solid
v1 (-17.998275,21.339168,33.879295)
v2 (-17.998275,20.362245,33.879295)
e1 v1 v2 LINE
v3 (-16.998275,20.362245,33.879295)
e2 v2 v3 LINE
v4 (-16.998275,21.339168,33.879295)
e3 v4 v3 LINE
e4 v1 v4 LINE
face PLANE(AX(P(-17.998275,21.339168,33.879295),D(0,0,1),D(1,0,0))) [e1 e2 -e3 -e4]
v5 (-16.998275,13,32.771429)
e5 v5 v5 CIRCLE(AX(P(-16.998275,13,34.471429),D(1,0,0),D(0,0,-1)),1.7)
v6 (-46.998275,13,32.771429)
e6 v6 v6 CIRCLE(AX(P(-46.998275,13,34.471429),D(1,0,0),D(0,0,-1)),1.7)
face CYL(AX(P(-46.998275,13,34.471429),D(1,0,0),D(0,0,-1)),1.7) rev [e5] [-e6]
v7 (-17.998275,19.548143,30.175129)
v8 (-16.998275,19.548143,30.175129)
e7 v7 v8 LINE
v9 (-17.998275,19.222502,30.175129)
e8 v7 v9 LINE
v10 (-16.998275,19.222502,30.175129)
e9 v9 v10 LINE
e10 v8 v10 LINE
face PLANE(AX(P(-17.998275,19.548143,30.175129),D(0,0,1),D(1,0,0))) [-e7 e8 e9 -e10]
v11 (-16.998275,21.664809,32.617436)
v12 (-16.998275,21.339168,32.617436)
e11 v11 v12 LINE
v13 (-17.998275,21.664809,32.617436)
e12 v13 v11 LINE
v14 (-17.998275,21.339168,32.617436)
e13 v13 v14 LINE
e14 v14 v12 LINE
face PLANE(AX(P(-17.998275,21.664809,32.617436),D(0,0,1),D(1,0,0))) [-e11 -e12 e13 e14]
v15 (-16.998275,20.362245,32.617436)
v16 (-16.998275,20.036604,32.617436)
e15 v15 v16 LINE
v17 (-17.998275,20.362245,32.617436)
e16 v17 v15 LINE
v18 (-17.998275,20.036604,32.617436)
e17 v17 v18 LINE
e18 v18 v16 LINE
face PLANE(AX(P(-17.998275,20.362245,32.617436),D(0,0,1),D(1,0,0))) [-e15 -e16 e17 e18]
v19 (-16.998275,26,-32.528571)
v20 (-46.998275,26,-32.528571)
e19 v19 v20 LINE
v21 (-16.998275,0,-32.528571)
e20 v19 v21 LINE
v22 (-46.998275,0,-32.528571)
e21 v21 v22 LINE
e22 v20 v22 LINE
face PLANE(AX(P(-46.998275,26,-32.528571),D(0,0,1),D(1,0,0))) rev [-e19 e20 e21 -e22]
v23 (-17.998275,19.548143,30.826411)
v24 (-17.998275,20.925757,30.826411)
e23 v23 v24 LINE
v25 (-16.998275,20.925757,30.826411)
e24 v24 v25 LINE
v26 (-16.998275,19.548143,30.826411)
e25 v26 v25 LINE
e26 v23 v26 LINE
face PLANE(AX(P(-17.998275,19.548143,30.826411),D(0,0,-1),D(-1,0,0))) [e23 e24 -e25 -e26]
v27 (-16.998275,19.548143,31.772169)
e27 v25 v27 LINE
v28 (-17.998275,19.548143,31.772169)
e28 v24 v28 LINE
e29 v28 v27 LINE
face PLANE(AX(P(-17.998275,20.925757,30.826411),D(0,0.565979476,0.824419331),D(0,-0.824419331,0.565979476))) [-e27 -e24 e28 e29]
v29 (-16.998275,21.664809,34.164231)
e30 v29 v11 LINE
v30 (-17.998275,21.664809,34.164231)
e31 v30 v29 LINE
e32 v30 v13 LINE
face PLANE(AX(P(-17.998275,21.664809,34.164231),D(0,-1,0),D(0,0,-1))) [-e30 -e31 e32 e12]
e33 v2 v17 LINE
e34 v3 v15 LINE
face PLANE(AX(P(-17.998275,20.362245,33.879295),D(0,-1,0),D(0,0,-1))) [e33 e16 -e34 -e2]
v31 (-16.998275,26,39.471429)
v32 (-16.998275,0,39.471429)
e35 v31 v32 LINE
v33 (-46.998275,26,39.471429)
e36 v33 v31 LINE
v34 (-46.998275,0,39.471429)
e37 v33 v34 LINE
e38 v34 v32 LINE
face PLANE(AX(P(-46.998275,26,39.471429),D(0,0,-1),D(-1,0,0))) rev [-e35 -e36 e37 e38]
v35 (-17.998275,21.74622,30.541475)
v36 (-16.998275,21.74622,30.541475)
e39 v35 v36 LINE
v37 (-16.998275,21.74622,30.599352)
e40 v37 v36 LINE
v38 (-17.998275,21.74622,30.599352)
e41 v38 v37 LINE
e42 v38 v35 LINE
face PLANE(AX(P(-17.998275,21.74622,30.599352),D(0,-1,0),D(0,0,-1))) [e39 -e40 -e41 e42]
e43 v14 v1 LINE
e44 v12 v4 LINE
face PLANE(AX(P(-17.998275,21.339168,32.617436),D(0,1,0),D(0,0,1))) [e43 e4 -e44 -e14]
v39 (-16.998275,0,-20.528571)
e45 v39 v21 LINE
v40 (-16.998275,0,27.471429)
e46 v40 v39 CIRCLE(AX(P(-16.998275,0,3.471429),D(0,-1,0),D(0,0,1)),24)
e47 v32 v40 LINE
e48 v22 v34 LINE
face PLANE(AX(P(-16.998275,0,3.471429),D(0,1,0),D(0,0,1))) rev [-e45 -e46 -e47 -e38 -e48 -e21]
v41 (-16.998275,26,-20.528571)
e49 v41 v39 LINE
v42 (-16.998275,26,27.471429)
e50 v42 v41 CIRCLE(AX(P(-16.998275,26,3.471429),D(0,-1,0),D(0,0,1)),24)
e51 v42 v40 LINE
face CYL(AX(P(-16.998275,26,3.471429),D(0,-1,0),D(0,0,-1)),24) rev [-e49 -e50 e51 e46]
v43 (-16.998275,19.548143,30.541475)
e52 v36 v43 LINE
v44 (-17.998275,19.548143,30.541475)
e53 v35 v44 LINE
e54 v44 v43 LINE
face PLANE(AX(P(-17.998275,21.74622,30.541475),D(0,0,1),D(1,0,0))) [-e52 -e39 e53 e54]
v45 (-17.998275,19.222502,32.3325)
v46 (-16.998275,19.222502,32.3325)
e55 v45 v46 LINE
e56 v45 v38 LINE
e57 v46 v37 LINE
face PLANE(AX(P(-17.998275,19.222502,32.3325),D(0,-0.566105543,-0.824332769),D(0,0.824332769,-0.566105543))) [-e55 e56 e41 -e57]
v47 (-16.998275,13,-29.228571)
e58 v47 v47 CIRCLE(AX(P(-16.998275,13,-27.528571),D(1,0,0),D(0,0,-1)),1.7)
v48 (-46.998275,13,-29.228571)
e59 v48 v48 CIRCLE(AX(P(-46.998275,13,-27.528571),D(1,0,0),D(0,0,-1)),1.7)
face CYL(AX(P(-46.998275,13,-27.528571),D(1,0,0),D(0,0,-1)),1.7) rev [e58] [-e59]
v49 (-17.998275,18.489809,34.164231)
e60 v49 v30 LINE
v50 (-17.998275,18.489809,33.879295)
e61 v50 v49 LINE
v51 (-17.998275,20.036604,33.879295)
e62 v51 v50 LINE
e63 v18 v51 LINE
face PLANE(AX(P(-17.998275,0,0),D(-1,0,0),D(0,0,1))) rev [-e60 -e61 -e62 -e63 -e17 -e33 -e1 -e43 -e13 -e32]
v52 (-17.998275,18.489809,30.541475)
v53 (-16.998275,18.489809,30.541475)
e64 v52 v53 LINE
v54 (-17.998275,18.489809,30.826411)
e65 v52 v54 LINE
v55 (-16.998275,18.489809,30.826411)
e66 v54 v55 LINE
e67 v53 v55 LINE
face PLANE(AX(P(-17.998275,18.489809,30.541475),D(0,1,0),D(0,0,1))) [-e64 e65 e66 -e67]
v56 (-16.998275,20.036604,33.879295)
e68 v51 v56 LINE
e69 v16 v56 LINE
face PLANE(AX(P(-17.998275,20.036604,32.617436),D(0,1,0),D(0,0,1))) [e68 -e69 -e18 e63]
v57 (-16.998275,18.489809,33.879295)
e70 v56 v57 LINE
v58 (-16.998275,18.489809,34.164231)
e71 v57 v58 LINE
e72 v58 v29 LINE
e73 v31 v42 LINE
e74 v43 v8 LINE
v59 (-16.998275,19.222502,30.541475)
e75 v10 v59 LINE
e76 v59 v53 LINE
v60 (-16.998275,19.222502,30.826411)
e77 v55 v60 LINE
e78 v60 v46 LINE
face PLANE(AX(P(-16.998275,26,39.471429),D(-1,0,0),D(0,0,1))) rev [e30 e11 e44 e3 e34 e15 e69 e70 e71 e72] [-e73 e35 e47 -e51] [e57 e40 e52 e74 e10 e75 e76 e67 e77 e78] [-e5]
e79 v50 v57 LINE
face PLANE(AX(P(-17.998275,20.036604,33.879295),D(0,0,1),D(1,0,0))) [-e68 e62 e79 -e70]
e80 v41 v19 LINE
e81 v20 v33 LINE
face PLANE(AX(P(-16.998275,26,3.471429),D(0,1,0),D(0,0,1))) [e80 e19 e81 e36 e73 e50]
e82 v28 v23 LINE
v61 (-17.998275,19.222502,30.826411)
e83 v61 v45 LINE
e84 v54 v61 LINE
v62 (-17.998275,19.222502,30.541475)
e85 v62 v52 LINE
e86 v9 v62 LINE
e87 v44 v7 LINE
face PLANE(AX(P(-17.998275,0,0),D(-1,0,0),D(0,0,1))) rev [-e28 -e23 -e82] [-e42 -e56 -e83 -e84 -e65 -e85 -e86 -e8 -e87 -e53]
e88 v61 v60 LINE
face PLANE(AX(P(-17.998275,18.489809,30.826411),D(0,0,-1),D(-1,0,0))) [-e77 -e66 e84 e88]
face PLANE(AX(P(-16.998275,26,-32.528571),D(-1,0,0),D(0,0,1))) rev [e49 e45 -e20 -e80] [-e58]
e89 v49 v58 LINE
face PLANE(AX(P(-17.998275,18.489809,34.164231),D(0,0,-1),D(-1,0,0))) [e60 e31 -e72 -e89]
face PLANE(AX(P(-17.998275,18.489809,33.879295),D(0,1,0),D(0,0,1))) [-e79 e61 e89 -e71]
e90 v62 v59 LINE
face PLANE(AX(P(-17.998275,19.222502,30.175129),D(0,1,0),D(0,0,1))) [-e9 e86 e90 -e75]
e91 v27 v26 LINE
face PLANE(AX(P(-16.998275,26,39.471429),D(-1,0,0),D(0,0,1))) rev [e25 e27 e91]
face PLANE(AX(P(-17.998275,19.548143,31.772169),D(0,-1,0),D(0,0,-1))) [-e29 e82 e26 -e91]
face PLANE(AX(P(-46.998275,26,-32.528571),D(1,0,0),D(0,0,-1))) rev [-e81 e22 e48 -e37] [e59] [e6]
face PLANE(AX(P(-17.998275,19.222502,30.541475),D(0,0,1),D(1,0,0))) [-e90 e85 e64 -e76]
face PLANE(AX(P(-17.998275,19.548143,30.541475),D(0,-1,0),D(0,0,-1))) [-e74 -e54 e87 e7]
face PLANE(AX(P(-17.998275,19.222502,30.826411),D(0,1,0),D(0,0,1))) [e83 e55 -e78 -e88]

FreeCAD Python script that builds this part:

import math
import FreeCAD as App
import Part
import Sketcher
from FreeCAD import Vector
Q = App.Units.Quantity


def add_polygon(sketch, points):
    """Adds a closed chain of lines whose ends are joined by coincident constraints."""
    first, n = sketch.GeometryCount, len(points)
    for a, b in zip(points, points[1:] + points[:1]):
        sketch.addGeometry(Part.LineSegment(App.Vector(*a, 0), App.Vector(*b, 0)), False)
    for i in range(n):
        sketch.addConstraint(Sketcher.Constraint("Coincident", first + i, 2, first + (i + 1) % n, 1))

doc = App.newDocument("Part")
params = doc.addObject("Spreadsheet::Sheet", "Params")
for row, (alias, value) in enumerate([
    ("sketch1_radius", "24 mm"),
    ("sketch1_width", "30 mm"),
    ("sketch1_height", "72 mm"),
    ("pad1_length", "26 mm"),
    ("sketch2_diameter", "3.4 mm"),
    ("pocket2_length", "1 mm"),
], start=1):
    params.set(f"A{row}", alias)
    params.set(f"B{row}", "=" + value)
    params.setAlias(f"B{row}", alias)

body = doc.addObject("PartDesign::Body", "Body")

sketch1 = body.newObject("Sketcher::SketchObject", "Sketch")
sketch1.AttachmentSupport = (doc.getObject("XZ_Plane"), [""])
sketch1.MapMode = "FlatFace"
sketch1.addGeometry([
    Part.LineSegment(Vector(-46.998275, -32.528571, 0), Vector(-46.998275, 39.471429, 0)),
    Part.LineSegment(Vector(-46.998275, 39.471429, 0), Vector(-16.998275, 39.471429, 0)),
    Part.LineSegment(Vector(-16.998275, 39.471429, 0), Vector(-16.998275, 27.471429, 0)),
    Part.ArcOfCircle(Part.Circle(Vector(-16.998275, 3.471429, 0), Vector(0, 0, 1), 24), math.radians(90), math.radians(270)),
    Part.LineSegment(Vector(-16.998275, -20.528571, 0), Vector(-16.998275, -32.528571, 0)),
    Part.LineSegment(Vector(-16.998275, -32.528571, 0), Vector(-46.998275, -32.528571, 0)),
], False)
sketch1.addConstraint([
    Sketcher.Constraint("Coincident", 0, 2, 1, 1),
    Sketcher.Constraint("Coincident", 1, 2, 2, 1),
    Sketcher.Constraint("Coincident", 2, 2, 3, 1),
    Sketcher.Constraint("Coincident", 3, 2, 4, 1),
    Sketcher.Constraint("Coincident", 4, 2, 5, 1),
    Sketcher.Constraint("Coincident", 5, 2, 0, 1),
    Sketcher.Constraint("Vertical", 0),
    Sketcher.Constraint("Horizontal", 1),
    Sketcher.Constraint("Vertical", 2),
    Sketcher.Constraint("Vertical", 4),
    Sketcher.Constraint("Horizontal", 5),
    Sketcher.Constraint("Vertical", 3, 3, 1, 2),
    Sketcher.Constraint("Vertical", 2, 2, 3, 2),
    Sketcher.Constraint("Equal", 2, 4),
    Sketcher.Constraint("Radius", 3, Q("24 mm")),
    Sketcher.Constraint("DistanceX", 1, 1, 1, 2, Q("30 mm")),
    Sketcher.Constraint("DistanceY", 0, 1, 0, 2, Q("72 mm")),
    Sketcher.Constraint("DistanceY", -1, 1, 3, 3, Q("3.471429 mm")),
    Sketcher.Constraint("DistanceX", 3, 3, -1, 1, Q("16.998275 mm")),
])
sketch1.setExpression("Constraints[14]", "Params.sketch1_radius")
sketch1.setExpression("Constraints[15]", "Params.sketch1_width")
sketch1.setExpression("Constraints[16]", "Params.sketch1_height")
pad1 = body.newObject("PartDesign::Pad", "Pad")
pad1.Profile = sketch1
pad1.setExpression("Length", "Params.pad1_length")
pad1.Reversed = True

sketch2 = body.newObject("Sketcher::SketchObject", "Sketch001")
sketch2.AttachmentSupport = (doc.getObject("YZ_Plane"), [""])
sketch2.MapMode = "FlatFace"
sketch2.AttachmentOffset = App.Placement(Vector(0, 0, -16.998275), App.Rotation())
sketch2.addGeometry([
    Part.Circle(Vector(13, 34.471429, 0), Vector(0, 0, 1), 1.7),
    Part.Circle(Vector(13, -27.528571, 0), Vector(0, 0, 1), 1.7),
], False)
sketch2.addConstraint([
    Sketcher.Constraint("Equal", 0, 1),
    Sketcher.Constraint("Vertical", 0, 3, 1, 3),
    Sketcher.Constraint("Diameter", 0, Q("3.4 mm")),
    Sketcher.Constraint("DistanceX", -1, 1, 0, 3, Q("13 mm")),
    Sketcher.Constraint("DistanceY", 1, 3, 0, 3, Q("62 mm")),
    Sketcher.Constraint("DistanceY", -1, 1, 0, 3, Q("34.471429 mm")),
])
sketch2.setExpression("Constraints[2]", "Params.sketch2_diameter")
pocket1 = body.newObject("PartDesign::Pocket", "Pocket")
pocket1.Profile = sketch2
pocket1.Type = "ThroughAll"

sketch3 = body.newObject("Sketcher::SketchObject", "Sketch002")
sketch3.AttachmentSupport = (doc.getObject("YZ_Plane"), [""])
sketch3.MapMode = "FlatFace"
sketch3.AttachmentOffset = App.Placement(Vector(0, 0, -16.998275), App.Rotation())
add_polygon(sketch3, [(21.664809, 32.617436), (21.664809, 34.164231), (18.489809, 34.164231), (18.489809, 33.879295), (20.036604, 33.879295), (20.036604, 32.617436), (20.362245, 32.617436), (20.362245, 33.879295), (21.339168, 33.879295), (21.339168, 32.617436)])
add_polygon(sketch3, [(21.74622, 30.541475), (21.74622, 30.599352), (19.222502, 32.3325), (19.222502, 30.826411), (18.489809, 30.826411), (18.489809, 30.541475), (19.222502, 30.541475), (19.222502, 30.175129), (19.548143, 30.175129), (19.548143, 30.541475)])
add_polygon(sketch3, [(19.548143, 30.826411), (19.548143, 31.772169), (20.925757, 30.826411)])
sketch3.addConstraint([
    Sketcher.Constraint("Vertical", 0),
    Sketcher.Constraint("Horizontal", 1),
    Sketcher.Constraint("Vertical", 2),
    Sketcher.Constraint("Horizontal", 3),
    Sketcher.Constraint("Vertical", 4),
    Sketcher.Constraint("Horizontal", 5),
    Sketcher.Constraint("Vertical", 6),
    Sketcher.Constraint("Horizontal", 7),
    Sketcher.Constraint("Vertical", 8),
    Sketcher.Constraint("Horizontal", 9),
    Sketcher.Constraint("Vertical", 10),
    Sketcher.Constraint("Vertical", 12),
    Sketcher.Constraint("Horizontal", 13),
    Sketcher.Constraint("Vertical", 14),
    Sketcher.Constraint("Horizontal", 15),
    Sketcher.Constraint("Vertical", 16),
    Sketcher.Constraint("Horizontal", 17),
    Sketcher.Constraint("Vertical", 18),
    Sketcher.Constraint("Horizontal", 19),
    Sketcher.Constraint("Vertical", 20),
    Sketcher.Constraint("Horizontal", 22),
    Sketcher.Constraint("Horizontal", 3, 2, 6, 2),
    Sketcher.Constraint("Horizontal", 5, 2, 8, 2),
    Sketcher.Constraint("Horizontal", 15, 2, 18, 2),
    Sketcher.Constraint("Horizontal", 13, 2, 21, 2),
    Sketcher.Constraint("Vertical", 2, 2, 13, 2),
    Sketcher.Constraint("Vertical", 12, 2, 15, 2),
    Sketcher.Constraint("Vertical", 18, 2, 20, 2),
    Sketcher.Constraint("Equal", 5, 9),
    Sketcher.Constraint("Equal", 9, 17),
    Sketcher.Constraint("Equal", 3, 0),
    Sketcher.Constraint("Equal", 2, 14),
    Sketcher.Constraint("DistanceX", 1, 2, 1, 1, Q("3.175 mm")),
    Sketcher.Constraint("DistanceX", 5, 1, 5, 2, Q("0.325641 mm")),
    Sketcher.Constraint("DistanceY", 4, 2, 4, 1, Q("1.261859 mm")),
    Sketcher.Constraint("DistanceY", 12, 2, 12, 1, Q("1.50609 mm")),
    Sketcher.Constraint("DistanceY", 20, 1, 20, 2, Q("0.945758 mm")),
    Sketcher.Constraint("DistanceX", -1, 1, 11, 2, Q("19.222502 mm")),
    Sketcher.Constraint("DistanceY", -1, 1, 11, 2, Q("32.3325 mm")),
    Sketcher.Constraint("Distance", 11, Q("3.061528 mm")),
    Sketcher.Constraint("Distance", 21, Q("1.671011 mm")),
    Sketcher.Constraint("DistanceX", 3, 1, 3, 2, Q("1.546795 mm")),
    Sketcher.Constraint("DistanceX", 13, 2, 13, 1, Q("0.732692 mm")),
    Sketcher.Constraint("DistanceX", 19, 1, 19, 2, Q("2.198077 mm")),
    Sketcher.Constraint("DistanceY", 16, 2, 16, 1, Q("0.366346 mm")),
    Sketcher.Constraint("DistanceY", -1, 1, 0, 2, Q("34.164231 mm")),
])
pocket2 = body.newObject("PartDesign::Pocket", "Pocket001")
pocket2.Profile = sketch3
pocket2.setExpression("Length", "Params.pocket2_length")

doc.recompute()
